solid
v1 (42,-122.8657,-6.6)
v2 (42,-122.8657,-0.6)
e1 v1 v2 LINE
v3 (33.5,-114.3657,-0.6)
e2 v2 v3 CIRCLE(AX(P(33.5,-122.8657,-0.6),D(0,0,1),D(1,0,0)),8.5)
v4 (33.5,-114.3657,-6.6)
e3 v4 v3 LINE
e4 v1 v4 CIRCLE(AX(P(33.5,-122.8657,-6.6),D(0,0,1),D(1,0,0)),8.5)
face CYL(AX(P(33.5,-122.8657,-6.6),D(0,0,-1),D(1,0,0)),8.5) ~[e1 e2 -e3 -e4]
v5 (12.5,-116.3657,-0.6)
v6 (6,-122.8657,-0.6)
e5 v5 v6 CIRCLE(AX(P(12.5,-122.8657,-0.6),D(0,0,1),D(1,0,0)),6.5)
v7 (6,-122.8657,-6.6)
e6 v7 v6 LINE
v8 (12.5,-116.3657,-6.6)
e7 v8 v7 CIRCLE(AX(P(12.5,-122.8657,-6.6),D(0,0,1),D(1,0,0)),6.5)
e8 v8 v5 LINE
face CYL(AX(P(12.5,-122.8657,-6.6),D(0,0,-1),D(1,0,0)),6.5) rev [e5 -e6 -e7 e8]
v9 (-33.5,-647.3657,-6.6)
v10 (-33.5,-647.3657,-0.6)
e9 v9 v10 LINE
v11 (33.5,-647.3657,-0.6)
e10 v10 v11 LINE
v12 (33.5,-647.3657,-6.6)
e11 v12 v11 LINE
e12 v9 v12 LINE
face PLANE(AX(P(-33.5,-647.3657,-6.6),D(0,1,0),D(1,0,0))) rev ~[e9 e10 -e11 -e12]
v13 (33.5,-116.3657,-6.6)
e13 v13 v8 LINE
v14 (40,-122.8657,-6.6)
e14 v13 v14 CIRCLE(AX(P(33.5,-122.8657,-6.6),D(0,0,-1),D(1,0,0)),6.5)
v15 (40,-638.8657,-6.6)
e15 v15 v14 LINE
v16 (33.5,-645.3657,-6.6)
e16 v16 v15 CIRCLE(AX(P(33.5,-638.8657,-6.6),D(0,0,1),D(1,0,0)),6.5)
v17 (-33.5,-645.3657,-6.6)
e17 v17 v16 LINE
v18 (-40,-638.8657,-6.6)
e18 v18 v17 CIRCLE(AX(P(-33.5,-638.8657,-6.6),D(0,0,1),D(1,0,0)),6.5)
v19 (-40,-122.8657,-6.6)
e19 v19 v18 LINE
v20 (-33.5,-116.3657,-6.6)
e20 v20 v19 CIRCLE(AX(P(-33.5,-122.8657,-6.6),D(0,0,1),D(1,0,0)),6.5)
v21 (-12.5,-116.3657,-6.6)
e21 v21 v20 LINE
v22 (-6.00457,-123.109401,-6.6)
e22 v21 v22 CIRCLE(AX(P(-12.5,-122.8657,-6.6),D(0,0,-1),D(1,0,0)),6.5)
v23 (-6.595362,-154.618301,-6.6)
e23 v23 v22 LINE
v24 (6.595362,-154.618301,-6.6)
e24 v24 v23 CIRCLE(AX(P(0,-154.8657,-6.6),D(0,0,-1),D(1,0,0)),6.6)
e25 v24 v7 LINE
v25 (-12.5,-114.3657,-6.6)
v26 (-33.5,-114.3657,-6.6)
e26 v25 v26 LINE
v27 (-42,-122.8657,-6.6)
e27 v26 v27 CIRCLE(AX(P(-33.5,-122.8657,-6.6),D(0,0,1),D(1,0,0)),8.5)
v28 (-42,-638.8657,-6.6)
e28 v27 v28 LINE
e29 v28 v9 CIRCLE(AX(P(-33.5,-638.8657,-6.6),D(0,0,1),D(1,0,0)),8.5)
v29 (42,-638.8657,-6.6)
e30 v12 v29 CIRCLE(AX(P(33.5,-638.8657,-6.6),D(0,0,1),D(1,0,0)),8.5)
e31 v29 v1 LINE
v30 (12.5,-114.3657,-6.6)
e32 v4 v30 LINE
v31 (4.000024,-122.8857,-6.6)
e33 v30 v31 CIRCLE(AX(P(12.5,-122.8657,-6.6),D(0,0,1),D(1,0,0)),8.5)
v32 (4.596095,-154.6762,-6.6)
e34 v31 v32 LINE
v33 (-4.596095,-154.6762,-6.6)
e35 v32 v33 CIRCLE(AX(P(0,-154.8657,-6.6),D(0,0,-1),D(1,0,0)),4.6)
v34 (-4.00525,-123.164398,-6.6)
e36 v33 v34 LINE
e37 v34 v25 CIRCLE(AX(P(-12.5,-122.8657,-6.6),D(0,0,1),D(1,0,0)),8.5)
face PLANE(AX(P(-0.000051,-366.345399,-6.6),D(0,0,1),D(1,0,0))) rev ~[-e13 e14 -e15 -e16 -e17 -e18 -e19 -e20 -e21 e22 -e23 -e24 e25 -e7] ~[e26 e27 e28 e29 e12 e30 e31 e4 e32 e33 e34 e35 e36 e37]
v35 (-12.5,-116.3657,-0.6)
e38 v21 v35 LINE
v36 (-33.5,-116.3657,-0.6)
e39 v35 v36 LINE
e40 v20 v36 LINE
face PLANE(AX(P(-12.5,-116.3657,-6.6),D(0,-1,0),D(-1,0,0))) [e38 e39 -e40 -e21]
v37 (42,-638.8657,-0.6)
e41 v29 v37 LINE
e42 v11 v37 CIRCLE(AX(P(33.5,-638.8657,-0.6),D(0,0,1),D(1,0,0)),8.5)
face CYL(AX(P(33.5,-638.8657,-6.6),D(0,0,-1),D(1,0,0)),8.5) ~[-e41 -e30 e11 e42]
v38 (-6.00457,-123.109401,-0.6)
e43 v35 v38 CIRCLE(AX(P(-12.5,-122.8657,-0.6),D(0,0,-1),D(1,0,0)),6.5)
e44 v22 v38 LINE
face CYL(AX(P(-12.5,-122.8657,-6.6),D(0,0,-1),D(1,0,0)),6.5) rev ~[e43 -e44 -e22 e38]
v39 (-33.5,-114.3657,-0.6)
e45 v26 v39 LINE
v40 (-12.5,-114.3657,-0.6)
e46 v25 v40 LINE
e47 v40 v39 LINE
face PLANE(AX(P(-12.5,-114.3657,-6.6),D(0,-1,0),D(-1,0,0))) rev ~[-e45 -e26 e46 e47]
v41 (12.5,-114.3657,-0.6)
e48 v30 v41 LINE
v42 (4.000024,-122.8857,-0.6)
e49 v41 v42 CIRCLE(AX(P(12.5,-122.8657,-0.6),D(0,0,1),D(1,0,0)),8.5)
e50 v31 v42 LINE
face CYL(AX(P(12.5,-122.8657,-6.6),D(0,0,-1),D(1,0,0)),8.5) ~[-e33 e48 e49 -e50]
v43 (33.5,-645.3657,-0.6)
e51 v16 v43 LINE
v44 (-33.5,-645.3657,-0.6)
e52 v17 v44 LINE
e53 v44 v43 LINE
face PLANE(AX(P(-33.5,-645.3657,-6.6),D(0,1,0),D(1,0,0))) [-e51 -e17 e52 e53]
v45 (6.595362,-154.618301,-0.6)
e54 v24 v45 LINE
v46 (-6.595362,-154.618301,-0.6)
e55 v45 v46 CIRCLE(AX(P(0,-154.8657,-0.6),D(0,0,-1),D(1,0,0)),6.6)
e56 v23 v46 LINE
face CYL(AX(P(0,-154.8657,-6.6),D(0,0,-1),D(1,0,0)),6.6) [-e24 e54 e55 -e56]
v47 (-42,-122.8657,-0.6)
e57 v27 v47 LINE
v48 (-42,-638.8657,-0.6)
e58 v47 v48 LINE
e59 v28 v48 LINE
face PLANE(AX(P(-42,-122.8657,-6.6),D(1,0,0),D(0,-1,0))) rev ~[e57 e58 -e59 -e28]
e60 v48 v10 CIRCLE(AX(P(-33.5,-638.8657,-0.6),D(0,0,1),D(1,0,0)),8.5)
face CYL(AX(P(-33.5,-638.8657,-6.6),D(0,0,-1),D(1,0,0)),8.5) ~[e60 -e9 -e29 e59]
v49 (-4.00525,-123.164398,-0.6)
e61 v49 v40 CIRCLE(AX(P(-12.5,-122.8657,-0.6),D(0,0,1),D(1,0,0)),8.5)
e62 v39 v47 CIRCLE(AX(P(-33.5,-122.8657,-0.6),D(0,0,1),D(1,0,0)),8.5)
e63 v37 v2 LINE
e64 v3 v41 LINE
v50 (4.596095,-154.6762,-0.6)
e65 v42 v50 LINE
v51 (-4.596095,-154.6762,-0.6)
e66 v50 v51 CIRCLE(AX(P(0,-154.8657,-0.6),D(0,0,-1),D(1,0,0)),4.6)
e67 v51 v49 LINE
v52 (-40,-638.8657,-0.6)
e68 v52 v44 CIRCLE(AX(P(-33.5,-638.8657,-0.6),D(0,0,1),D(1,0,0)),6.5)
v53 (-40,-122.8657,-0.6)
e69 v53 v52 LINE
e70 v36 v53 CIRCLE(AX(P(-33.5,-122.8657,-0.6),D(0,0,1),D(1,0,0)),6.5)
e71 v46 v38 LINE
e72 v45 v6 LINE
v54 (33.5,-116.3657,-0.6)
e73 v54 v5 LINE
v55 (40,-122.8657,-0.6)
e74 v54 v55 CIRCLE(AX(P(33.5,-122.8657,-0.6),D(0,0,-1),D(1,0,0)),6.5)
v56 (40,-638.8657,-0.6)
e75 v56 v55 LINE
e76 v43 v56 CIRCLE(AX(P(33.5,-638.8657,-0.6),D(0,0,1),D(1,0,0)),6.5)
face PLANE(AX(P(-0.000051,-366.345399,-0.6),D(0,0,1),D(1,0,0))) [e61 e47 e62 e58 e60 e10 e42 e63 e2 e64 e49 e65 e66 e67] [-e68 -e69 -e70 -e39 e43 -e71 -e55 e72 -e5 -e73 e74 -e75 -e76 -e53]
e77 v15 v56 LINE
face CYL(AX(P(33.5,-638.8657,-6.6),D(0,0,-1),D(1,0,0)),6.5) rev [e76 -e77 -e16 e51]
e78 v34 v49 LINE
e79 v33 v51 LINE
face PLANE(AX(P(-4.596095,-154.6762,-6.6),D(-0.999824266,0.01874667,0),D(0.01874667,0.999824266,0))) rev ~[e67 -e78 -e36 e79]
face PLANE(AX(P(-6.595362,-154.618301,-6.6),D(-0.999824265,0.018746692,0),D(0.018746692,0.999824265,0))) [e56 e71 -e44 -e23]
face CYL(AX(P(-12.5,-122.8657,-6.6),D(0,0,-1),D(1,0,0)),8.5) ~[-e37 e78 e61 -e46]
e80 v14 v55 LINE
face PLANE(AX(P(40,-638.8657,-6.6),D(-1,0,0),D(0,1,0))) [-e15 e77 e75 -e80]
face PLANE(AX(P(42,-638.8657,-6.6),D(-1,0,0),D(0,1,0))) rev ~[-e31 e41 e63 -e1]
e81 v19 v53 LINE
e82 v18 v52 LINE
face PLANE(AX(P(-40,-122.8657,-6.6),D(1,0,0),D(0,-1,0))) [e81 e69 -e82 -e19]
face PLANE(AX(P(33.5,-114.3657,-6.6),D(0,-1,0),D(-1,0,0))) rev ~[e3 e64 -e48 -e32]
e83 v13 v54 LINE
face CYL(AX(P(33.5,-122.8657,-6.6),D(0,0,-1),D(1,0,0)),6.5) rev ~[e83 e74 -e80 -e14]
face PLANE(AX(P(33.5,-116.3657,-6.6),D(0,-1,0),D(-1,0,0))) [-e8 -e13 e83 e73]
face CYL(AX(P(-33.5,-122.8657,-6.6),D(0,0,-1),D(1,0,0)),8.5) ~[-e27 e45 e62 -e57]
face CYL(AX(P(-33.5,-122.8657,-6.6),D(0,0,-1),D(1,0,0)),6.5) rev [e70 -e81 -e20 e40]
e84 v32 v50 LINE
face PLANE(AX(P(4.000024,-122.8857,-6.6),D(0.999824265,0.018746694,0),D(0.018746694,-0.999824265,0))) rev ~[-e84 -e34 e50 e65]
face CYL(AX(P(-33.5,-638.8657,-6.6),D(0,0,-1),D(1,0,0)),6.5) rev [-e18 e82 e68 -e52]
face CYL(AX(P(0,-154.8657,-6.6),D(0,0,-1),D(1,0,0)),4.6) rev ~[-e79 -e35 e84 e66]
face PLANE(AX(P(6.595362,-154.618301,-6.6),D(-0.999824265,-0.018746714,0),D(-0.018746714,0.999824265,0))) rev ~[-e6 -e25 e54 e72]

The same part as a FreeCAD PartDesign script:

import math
import FreeCAD as App
import Part
import Sketcher

doc = App.newDocument("Part")
body = doc.addObject("PartDesign::Body", "Body")

sketch1 = doc.addObject("Sketcher::SketchObject", "Sketch")
body.addObject(sketch1)
sketch1.AttachmentSupport = (doc.XY_Plane, [""])
sketch1.MapMode = "FlatFace"
sketch1.AttachmentOffset = App.Placement(App.Vector(0, 0, -6.6), App.Rotation())
sketch1.addGeometry(Part.ArcOfCircle(Part.Circle(App.Vector(-33.5, -122.9, 0), App.Vector(0, 0, 1), 8.5), math.radians(90), math.radians(180)), False)
sketch1.addGeometry(Part.LineSegment(App.Vector(-42, -122.9, 0), App.Vector(-42, -638.9, 0)), False)
sketch1.addGeometry(Part.ArcOfCircle(Part.Circle(App.Vector(-33.5, -638.9, 0), App.Vector(0, 0, 1), 8.5), math.radians(180), math.radians(270)), False)
sketch1.addGeometry(Part.LineSegment(App.Vector(-33.5, -647.4, 0), App.Vector(33.5, -647.4, 0)), False)
sketch1.addGeometry(Part.ArcOfCircle(Part.Circle(App.Vector(33.5, -638.9, 0), App.Vector(0, 0, 1), 8.5), math.radians(-90), math.radians(0)), False)
sketch1.addGeometry(Part.LineSegment(App.Vector(42, -638.9, 0), App.Vector(42, -122.9, 0)), False)
sketch1.addGeometry(Part.ArcOfCircle(Part.Circle(App.Vector(33.5, -122.9, 0), App.Vector(0, 0, 1), 8.5), math.radians(0), math.radians(90)), False)
sketch1.addGeometry(Part.LineSegment(App.Vector(33.5, -114.4, 0), App.Vector(12.5, -114.4, 0)), False)
sketch1.addGeometry(Part.ArcOfCircle(Part.Circle(App.Vector(12.5, -122.9, 0), App.Vector(0, 0, 1), 8.5), math.radians(90), math.radians(180)), False)
sketch1.addGeometry(Part.LineSegment(App.Vector(4, -122.9, 0), App.Vector(4.6, -154.7, 0)), False)
sketch1.addGeometry(Part.ArcOfCircle(Part.Circle(App.Vector(0, -154.9, 0), App.Vector(0, 0, 1), 4.6), math.radians(178), math.radians(362)), False)
sketch1.addGeometry(Part.LineSegment(App.Vector(-4.6, -154.7, 0), App.Vector(-4, -123.2, 0)), False)
sketch1.addGeometry(Part.ArcOfCircle(Part.Circle(App.Vector(-12.5, -122.9, 0), App.Vector(0, 0, 1), 8.5), math.radians(-2), math.radians(90)), False)
sketch1.addGeometry(Part.LineSegment(App.Vector(-12.5, -114.4, 0), App.Vector(-33.5, -114.4, 0)), False)
sketch1.addGeometry(Part.LineSegment(App.Vector(-40, -638.9, 0), App.Vector(-40, -122.9, 0)), False)
sketch1.addGeometry(Part.ArcOfCircle(Part.Circle(App.Vector(-33.5, -122.9, 0), App.Vector(0, 0, 1), 6.5), math.radians(90), math.radians(180)), False)
sketch1.addGeometry(Part.LineSegment(App.Vector(-33.5, -116.4, 0), App.Vector(-12.5, -116.4, 0)), False)
sketch1.addGeometry(Part.ArcOfCircle(Part.Circle(App.Vector(-12.5, -122.9, 0), App.Vector(0, 0, 1), 6.5), math.radians(-2), math.radians(90)), False)
sketch1.addGeometry(Part.LineSegment(App.Vector(-6, -123.1, 0), App.Vector(-6.6, -154.6, 0)), False)
sketch1.addGeometry(Part.ArcOfCircle(Part.Circle(App.Vector(0, -154.9, 0), App.Vector(0, 0, 1), 6.6), math.radians(178), math.radians(362)), False)
sketch1.addGeometry(Part.LineSegment(App.Vector(6.6, -154.6, 0), App.Vector(6, -122.9, 0)), False)
sketch1.addGeometry(Part.ArcOfCircle(Part.Circle(App.Vector(12.5, -122.9, 0), App.Vector(0, 0, 1), 6.5), math.radians(90), math.radians(180)), False)
sketch1.addGeometry(Part.LineSegment(App.Vector(12.5, -116.4, 0), App.Vector(33.5, -116.4, 0)), False)
sketch1.addGeometry(Part.ArcOfCircle(Part.Circle(App.Vector(33.5, -122.9, 0), App.Vector(0, 0, 1), 6.5), math.radians(0), math.radians(90)), False)
sketch1.addGeometry(Part.LineSegment(App.Vector(40, -122.9, 0), App.Vector(40, -638.9, 0)), False)
sketch1.addGeometry(Part.ArcOfCircle(Part.Circle(App.Vector(33.5, -638.9, 0), App.Vector(0, 0, 1), 6.5), math.radians(-90), math.radians(0)), False)
sketch1.addGeometry(Part.LineSegment(App.Vector(33.5, -645.4, 0), App.Vector(-33.5, -645.4, 0)), False)
sketch1.addGeometry(Part.ArcOfCircle(Part.Circle(App.Vector(-33.5, -638.9, 0), App.Vector(0, 0, 1), 6.5), math.radians(180), math.radians(270)), False)
sketch1.addConstraint(Sketcher.Constraint("Tangent", 0, 2, 1, 1))
sketch1.addConstraint(Sketcher.Constraint("Tangent", 1, 2, 2, 1))
sketch1.addConstraint(Sketcher.Constraint("Tangent", 2, 2, 3, 1))
sketch1.addConstraint(Sketcher.Constraint("Tangent", 3, 2, 4, 1))
sketch1.addConstraint(Sketcher.Constraint("Tangent", 4, 2, 5, 1))
sketch1.addConstraint(Sketcher.Constraint("Tangent", 5, 2, 6, 1))
sketch1.addConstraint(Sketcher.Constraint("Tangent", 6, 2, 7, 1))
sketch1.addConstraint(Sketcher.Constraint("Tangent", 7, 2, 8, 1))
sketch1.addConstraint(Sketcher.Constraint("Coincident", 8, 2, 9, 1))
sketch1.addConstraint(Sketcher.Constraint("Coincident", 9, 2, 10, 2))
sketch1.addConstraint(Sketcher.Constraint("Coincident", 10, 1, 11, 1))
sketch1.addConstraint(Sketcher.Constraint("Coincident", 11, 2, 12, 1))
sketch1.addConstraint(Sketcher.Constraint("Tangent", 12, 2, 13, 1))
sketch1.addConstraint(Sketcher.Constraint("Tangent", 13, 2, 0, 1))
sketch1.addConstraint(Sketcher.Constraint("Tangent", 14, 2, 15, 2))
sketch1.addConstraint(Sketcher.Constraint("Tangent", 15, 1, 16, 1))
sketch1.addConstraint(Sketcher.Constraint("Tangent", 16, 2, 17, 2))
sketch1.addConstraint(Sketcher.Constraint("Coincident", 17, 1, 18, 1))
sketch1.addConstraint(Sketcher.Constraint("Coincident", 18, 2, 19, 1))
sketch1.addConstraint(Sketcher.Constraint("Coincident", 19, 2, 20, 1))
sketch1.addConstraint(Sketcher.Constraint("Coincident", 20, 2, 21, 2))
sketch1.addConstraint(Sketcher.Constraint("Tangent", 21, 1, 22, 1))
sketch1.addConstraint(Sketcher.Constraint("Tangent", 22, 2, 23, 2))
sketch1.addConstraint(Sketcher.Constraint("Tangent", 23, 1, 24, 1))
sketch1.addConstraint(Sketcher.Constraint("Tangent", 24, 2, 25, 2))
sketch1.addConstraint(Sketcher.Constraint("Tangent", 25, 1, 26, 1))
sketch1.addConstraint(Sketcher.Constraint("Tangent", 26, 2, 27, 2))
sketch1.addConstraint(Sketcher.Constraint("Tangent", 27, 1, 14, 1))
sketch1.addConstraint(Sketcher.Constraint("Vertical", 1))
sketch1.addConstraint(Sketcher.Constraint("Horizontal", 3))
sketch1.addConstraint(Sketcher.Constraint("Vertical", 5))
sketch1.addConstraint(Sketcher.Constraint("Horizontal", 7))
sketch1.addConstraint(Sketcher.Constraint("Horizontal", 13))
sketch1.addConstraint(Sketcher.Constraint("Vertical", 14))
sketch1.addConstraint(Sketcher.Constraint("Horizontal", 16))
sketch1.addConstraint(Sketcher.Constraint("Horizontal", 22))
sketch1.addConstraint(Sketcher.Constraint("Vertical", 24))
sketch1.addConstraint(Sketcher.Constraint("Horizontal", 26))
sketch1.addConstraint(Sketcher.Constraint("Coincident", 15, 3, 0, 3))
sketch1.addConstraint(Sketcher.Constraint("Coincident", 17, 3, 12, 3))
sketch1.addConstraint(Sketcher.Constraint("Coincident", 19, 3, 10, 3))
sketch1.addConstraint(Sketcher.Constraint("Coincident", 21, 3, 8, 3))
sketch1.addConstraint(Sketcher.Constraint("Coincident", 23, 3, 6, 3))
sketch1.addConstraint(Sketcher.Constraint("Coincident", 25, 3, 4, 3))
sketch1.addConstraint(Sketcher.Constraint("Coincident", 27, 3, 2, 3))
sketch1.addConstraint(Sketcher.Constraint("Equal", 0, 2))
sketch1.addConstraint(Sketcher.Constraint("Equal", 2, 4))
sketch1.addConstraint(Sketcher.Constraint("Equal", 4, 6))
sketch1.addConstraint(Sketcher.Constraint("Equal", 6, 8))
sketch1.addConstraint(Sketcher.Constraint("Equal", 8, 12))
sketch1.addConstraint(Sketcher.Constraint("Symmetric", 0, 3, 6, 3, -2))
sketch1.addConstraint(Sketcher.Constraint("Symmetric", 9, 2, 10, 1, -2))
sketch1.addConstraint(Sketcher.Constraint("Parallel", 11, 18))
sketch1.addConstraint(Sketcher.Constraint("Parallel", 9, 20))
sketch1.addConstraint(Sketcher.Constraint("Horizontal", 18, 2, 19, 2))
sketch1.addConstraint(Sketcher.Constraint("Horizontal", 14, 2, 20, 2))
sketch1.addConstraint(Sketcher.Constraint("Equal", 7, 13))
sketch1.addConstraint(Sketcher.Constraint("Radius", 0, 8.5))
sketch1.addConstraint(Sketcher.Constraint("Radius", 10, 4.6))
sketch1.addConstraint(Sketcher.Constraint("Radius", 15, 6.5))
sketch1.addConstraint(Sketcher.Constraint("Radius", 19, 6.6))
sketch1.addConstraint(Sketcher.Constraint("DistanceX", 3, 1, 3, 2, 67.0))
sketch1.addConstraint(Sketcher.Constraint("DistanceX", 7, 2, 7, 1, 21.0))
sketch1.addConstraint(Sketcher.Constraint("DistanceY", 1, 2, 1, 1, 516.0))
sketch1.addConstraint(Sketcher.Constraint("DistanceY", 10, 3, 8, 3, 32.0))
sketch1.addConstraint(Sketcher.Constraint("DistanceY", 8, 2, 8, 3, 0.02))
sketch1.addConstraint(Sketcher.Constraint("Distance", 9, 31.796))
sketch1.addConstraint(Sketcher.Constraint("DistanceY", 11, 2, 17, 1, 0.055))
sketch1.addConstraint(Sketcher.Constraint("DistanceY", 0, 3, -1, 1, 122.8657))
pad1 = doc.addObject("PartDesign::Pad", "Pad")
body.addObject(pad1)
pad1.Profile = sketch1
pad1.Length = 6

doc.recompute()
